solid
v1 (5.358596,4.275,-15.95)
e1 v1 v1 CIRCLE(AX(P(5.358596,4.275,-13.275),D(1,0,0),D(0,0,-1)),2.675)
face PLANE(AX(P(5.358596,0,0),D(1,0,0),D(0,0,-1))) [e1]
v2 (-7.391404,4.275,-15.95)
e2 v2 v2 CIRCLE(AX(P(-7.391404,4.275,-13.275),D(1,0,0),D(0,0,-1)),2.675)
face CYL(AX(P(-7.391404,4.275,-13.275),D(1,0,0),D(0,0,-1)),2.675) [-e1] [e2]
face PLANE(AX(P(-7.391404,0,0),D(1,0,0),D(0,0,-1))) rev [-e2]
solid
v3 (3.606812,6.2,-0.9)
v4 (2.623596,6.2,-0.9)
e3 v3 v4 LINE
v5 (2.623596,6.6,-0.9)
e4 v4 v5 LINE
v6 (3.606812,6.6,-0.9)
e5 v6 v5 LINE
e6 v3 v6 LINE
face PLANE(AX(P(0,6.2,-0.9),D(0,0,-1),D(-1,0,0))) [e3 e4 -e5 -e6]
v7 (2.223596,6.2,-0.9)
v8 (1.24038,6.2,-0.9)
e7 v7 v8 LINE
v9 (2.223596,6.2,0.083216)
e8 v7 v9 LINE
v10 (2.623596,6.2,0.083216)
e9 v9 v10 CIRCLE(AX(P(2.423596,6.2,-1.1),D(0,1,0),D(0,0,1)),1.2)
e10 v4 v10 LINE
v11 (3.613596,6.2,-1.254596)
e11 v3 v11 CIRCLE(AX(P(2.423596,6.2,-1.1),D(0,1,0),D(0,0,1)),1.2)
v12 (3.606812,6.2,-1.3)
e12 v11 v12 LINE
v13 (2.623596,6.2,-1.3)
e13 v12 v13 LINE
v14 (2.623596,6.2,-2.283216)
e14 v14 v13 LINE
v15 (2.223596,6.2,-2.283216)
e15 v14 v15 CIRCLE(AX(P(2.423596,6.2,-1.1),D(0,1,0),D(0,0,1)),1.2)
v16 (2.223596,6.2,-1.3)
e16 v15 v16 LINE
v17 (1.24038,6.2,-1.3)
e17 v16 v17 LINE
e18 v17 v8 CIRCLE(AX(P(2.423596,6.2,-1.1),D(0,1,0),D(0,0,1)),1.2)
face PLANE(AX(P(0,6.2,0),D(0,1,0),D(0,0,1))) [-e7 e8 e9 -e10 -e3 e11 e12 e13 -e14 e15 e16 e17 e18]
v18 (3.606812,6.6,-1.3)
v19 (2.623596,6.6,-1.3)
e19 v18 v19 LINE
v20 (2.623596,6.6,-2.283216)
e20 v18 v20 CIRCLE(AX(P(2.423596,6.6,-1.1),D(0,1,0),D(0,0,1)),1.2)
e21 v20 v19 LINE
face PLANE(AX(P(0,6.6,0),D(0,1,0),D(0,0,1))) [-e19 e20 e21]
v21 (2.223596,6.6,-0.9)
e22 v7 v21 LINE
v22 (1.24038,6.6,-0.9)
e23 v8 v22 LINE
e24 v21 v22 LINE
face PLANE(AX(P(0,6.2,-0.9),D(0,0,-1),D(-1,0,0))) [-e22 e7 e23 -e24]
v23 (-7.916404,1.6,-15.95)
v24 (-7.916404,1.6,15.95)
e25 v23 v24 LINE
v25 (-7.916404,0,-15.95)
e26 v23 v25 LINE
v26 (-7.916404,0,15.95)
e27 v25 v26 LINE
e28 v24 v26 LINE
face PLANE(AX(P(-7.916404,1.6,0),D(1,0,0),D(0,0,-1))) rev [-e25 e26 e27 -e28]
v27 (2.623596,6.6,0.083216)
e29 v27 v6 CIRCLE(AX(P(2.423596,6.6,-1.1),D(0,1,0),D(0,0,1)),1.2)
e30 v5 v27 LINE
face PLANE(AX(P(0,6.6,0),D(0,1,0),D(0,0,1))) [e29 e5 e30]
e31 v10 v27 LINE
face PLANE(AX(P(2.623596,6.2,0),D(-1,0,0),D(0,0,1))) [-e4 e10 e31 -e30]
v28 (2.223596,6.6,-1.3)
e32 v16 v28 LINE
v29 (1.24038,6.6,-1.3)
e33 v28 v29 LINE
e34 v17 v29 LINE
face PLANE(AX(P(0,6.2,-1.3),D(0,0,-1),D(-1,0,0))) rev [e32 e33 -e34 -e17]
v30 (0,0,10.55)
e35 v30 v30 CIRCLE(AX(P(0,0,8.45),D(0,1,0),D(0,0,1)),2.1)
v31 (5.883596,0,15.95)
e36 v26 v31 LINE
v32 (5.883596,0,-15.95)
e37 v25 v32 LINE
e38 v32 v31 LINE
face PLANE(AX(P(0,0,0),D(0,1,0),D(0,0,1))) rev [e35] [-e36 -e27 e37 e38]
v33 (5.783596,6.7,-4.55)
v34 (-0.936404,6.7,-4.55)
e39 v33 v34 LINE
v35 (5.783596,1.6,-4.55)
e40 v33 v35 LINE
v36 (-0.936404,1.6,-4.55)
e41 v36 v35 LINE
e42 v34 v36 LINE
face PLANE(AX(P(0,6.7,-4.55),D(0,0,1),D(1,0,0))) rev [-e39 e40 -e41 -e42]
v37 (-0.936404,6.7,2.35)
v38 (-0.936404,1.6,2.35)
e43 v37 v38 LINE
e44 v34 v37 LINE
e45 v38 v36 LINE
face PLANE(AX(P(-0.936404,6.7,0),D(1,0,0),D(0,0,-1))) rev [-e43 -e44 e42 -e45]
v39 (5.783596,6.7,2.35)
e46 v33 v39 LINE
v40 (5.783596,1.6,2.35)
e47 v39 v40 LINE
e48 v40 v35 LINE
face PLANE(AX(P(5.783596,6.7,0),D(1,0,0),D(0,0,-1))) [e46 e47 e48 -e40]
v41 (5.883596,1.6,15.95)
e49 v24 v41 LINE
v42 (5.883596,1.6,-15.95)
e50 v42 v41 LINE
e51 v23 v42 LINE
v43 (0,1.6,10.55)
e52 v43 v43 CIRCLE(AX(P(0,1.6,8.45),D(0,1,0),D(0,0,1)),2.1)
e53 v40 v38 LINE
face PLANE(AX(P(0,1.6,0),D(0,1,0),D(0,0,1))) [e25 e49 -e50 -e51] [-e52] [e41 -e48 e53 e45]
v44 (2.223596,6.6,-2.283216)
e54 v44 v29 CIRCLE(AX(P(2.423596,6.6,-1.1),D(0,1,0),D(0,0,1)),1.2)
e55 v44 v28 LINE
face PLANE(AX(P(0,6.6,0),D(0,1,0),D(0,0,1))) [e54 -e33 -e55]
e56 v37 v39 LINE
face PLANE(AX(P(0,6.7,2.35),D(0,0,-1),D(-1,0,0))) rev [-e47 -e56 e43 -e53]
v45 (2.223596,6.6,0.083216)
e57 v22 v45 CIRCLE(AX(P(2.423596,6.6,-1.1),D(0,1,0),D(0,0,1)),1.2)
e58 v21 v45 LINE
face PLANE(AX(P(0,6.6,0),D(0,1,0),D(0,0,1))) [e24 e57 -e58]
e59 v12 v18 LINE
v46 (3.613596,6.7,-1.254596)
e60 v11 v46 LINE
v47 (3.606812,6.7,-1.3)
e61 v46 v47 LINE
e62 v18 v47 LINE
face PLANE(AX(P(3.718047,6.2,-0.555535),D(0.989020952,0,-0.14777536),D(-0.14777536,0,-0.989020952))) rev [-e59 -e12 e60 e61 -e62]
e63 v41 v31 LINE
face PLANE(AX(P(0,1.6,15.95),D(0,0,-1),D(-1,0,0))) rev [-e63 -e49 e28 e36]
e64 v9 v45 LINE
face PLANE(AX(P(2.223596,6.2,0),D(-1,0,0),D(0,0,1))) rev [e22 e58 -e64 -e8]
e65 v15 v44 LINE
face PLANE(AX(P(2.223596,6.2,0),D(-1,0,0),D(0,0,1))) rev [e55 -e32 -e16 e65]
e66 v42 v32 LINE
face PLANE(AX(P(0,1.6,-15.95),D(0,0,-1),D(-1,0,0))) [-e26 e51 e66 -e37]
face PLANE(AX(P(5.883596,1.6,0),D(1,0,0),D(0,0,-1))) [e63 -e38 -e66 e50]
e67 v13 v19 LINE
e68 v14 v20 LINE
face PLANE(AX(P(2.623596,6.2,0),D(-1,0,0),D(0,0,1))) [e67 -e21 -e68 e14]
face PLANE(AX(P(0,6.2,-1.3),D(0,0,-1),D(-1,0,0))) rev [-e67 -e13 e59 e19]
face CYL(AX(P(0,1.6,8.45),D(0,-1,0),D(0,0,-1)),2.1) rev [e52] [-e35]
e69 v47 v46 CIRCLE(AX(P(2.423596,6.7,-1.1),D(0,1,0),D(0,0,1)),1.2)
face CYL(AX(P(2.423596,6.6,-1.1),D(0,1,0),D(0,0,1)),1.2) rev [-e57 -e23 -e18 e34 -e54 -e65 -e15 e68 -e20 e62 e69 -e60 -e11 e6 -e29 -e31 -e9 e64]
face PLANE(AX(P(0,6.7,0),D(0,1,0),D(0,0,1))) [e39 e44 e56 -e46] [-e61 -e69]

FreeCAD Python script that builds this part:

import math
import FreeCAD as App
import Part
import Sketcher
from FreeCAD import Vector
Q = App.Units.Quantity

doc = App.newDocument("Part")
params = doc.addObject("Spreadsheet::Sheet", "Params")
for row, (alias, value) in enumerate([
    ("sketch1_width", "13.8 mm"),
    ("sketch1_height", "31.9 mm"),
    ("pad1_length", "1.6 mm"),
    ("sketch2_diameter", "4.2 mm"),
    ("sketch3_height", "6.9 mm"),
    ("sketch3_width", "6.72 mm"),
    ("pad2_length", "6.7 mm"),
    ("sketch4_radius", "1.2 mm"),
    ("pocket2_length", "0.1 mm"),
    ("sketch5_radius", "1.2 mm"),
    ("pocket3_length", "0.5 mm"),
    ("sketch6_diameter", "5.35 mm"),
    ("pad3_length", "6.375 mm"),
    ("pad3_length2", "6.375 mm"),
], start=1):
    params.set(f"A{row}", alias)
    params.set(f"B{row}", "=" + value)
    params.setAlias(f"B{row}", alias)

body = doc.addObject("PartDesign::Body", "Body")

# Sketch on XZ plane
sketch1 = doc.addObject("Sketcher::SketchObject", "Sketch")
body.addObject(sketch1)
sketch1.AttachmentSupport = (doc.XZ_Plane, [""])
sketch1.MapMode = "FlatFace"
sketch1.addGeometry([
    Part.LineSegment(Vector(-8, -16, 0), Vector(-8, 16, 0)),
    Part.LineSegment(Vector(-8, 16, 0), Vector(6, 16, 0)),
    Part.LineSegment(Vector(6, 16, 0), Vector(6, -16, 0)),
    Part.LineSegment(Vector(6, -16, 0), Vector(-8, -16, 0)),
], False)
sketch1.addConstraint([
    Sketcher.Constraint("Coincident", 0, 2, 1, 1),
    Sketcher.Constraint("Coincident", 1, 2, 2, 1),
    Sketcher.Constraint("Coincident", 2, 2, 3, 1),
    Sketcher.Constraint("Coincident", 3, 2, 0, 1),
    Sketcher.Constraint("Vertical", 0),
    Sketcher.Constraint("Horizontal", 1),
    Sketcher.Constraint("Vertical", 2),
    Sketcher.Constraint("Horizontal", 3),
    Sketcher.Constraint("DistanceX", 1, 1, 1, 2, Q("13.8 mm")),
    Sketcher.Constraint("DistanceY", 0, 1, 0, 2, Q("31.9 mm")),
    Sketcher.Constraint("DistanceY", -1, 1, 0, 2, Q("15.95 mm")),
    Sketcher.Constraint("DistanceX", 0, 2, -1, 1, Q("7.916404 mm")),
])
sketch1.setExpression("Constraints[8]", "Params.sketch1_width")
sketch1.setExpression("Constraints[9]", "Params.sketch1_height")
pad1 = doc.addObject("PartDesign::Pad", "Pad")
body.addObject(pad1)
pad1.Profile = sketch1
pad1.setExpression("Length", "Params.pad1_length")
pad1.Reversed = True

# Sketch on XZ plane
sketch2 = doc.addObject("Sketcher::SketchObject", "Sketch001")
body.addObject(sketch2)
sketch2.AttachmentSupport = (doc.XZ_Plane, [""])
sketch2.MapMode = "FlatFace"
sketch2.addGeometry(Part.Circle(Vector(0, 8.4, 0), Vector(0, 0, 1), 2.1), False)
sketch2.addConstraint([
    Sketcher.Constraint("PointOnObject", 0, 3, -2),
    Sketcher.Constraint("Diameter", 0, Q("4.2 mm")),
    Sketcher.Constraint("DistanceY", -1, 1, 0, 3, Q("8.45 mm")),
])
sketch2.setExpression("Constraints[1]", "Params.sketch2_diameter")
pocket1 = doc.addObject("PartDesign::Pocket", "Pocket")
body.addObject(pocket1)
pocket1.Profile = sketch2
pocket1.Type = "ThroughAll"

# Sketch on XZ plane
sketch3 = doc.addObject("Sketcher::SketchObject", "Sketch002")
body.addObject(sketch3)
sketch3.AttachmentSupport = (doc.XZ_Plane, [""])
sketch3.MapMode = "FlatFace"
sketch3.addGeometry([
    Part.LineSegment(Vector(-1, -5, 0), Vector(-1, 2, 0)),
    Part.LineSegment(Vector(-1, 2, 0), Vector(6, 2, 0)),
    Part.LineSegment(Vector(6, 2, 0), Vector(6, -5, 0)),
    Part.LineSegment(Vector(6, -5, 0), Vector(-1, -5, 0)),
], False)
sketch3.addConstraint([
    Sketcher.Constraint("Coincident", 0, 2, 1, 1),
    Sketcher.Constraint("Coincident", 1, 2, 2, 1),
    Sketcher.Constraint("Coincident", 2, 2, 3, 1),
    Sketcher.Constraint("Coincident", 3, 2, 0, 1),
    Sketcher.Constraint("Vertical", 0),
    Sketcher.Constraint("Horizontal", 1),
    Sketcher.Constraint("Vertical", 2),
    Sketcher.Constraint("Horizontal", 3),
    Sketcher.Constraint("DistanceY", 0, 1, 0, 2, Q("6.9 mm")),
    Sketcher.Constraint("DistanceX", 1, 1, 1, 2, Q("6.72 mm")),
    Sketcher.Constraint("DistanceY", -1, 1, 0, 2, Q("2.35 mm")),
    Sketcher.Constraint("DistanceX", 0, 2, -1, 1, Q("0.936404 mm")),
])
sketch3.setExpression("Constraints[8]", "Params.sketch3_height")
sketch3.setExpression("Constraints[9]", "Params.sketch3_width")
pad2 = doc.addObject("PartDesign::Pad", "Pad001")
body.addObject(pad2)
pad2.Profile = sketch3
pad2.setExpression("Length", "Params.pad2_length")
pad2.Reversed = True

# Sketch on XZ plane
sketch4 = doc.addObject("Sketcher::SketchObject", "Sketch003")
body.addObject(sketch4)
sketch4.AttachmentSupport = (doc.XZ_Plane, [""])
sketch4.MapMode = "FlatFace"
sketch4.AttachmentOffset = App.Placement(Vector(0, 0, -6.7), App.Rotation())
sketch4.addGeometry([
    Part.ArcOfCircle(Part.Circle(Vector(2.4, -1.1, 0), Vector(0, 0, 1), 1.2), math.radians(-80), math.radians(-10)),  # 0
    Part.LineSegment(Vector(2.6, -2.3, 0), Vector(2.6, -1.3, 0)),  # 1
    Part.LineSegment(Vector(2.6, -1.3, 0), Vector(3.6, -1.3, 0)),  # 2
    Part.LineSegment(Vector(1.2, -1.3, 0), Vector(2.2, -1.3, 0)),  # 3
    Part.LineSegment(Vector(2.2, -1.3, 0), Vector(2.2, -2.3, 0)),  # 4
    Part.ArcOfCircle(Part.Circle(Vector(2.4, -1.1, 0), Vector(0, 0, 1), 1.2), math.radians(-170), math.radians(-100)),  # 5
    Part.LineSegment(Vector(2.2, -0.9, 0), Vector(1.2, -0.9, 0)),  # 6
    Part.ArcOfCircle(Part.Circle(Vector(2.4, -1.1, 0), Vector(0, 0, 1), 1.2), math.radians(100), math.radians(170)),  # 7
    Part.LineSegment(Vector(2.2, 0.1, 0), Vector(2.2, -0.9, 0)),  # 8
    Part.LineSegment(Vector(2.6, -0.9, 0), Vector(2.6, 0.1, 0)),  # 9
    Part.ArcOfCircle(Part.Circle(Vector(2.4, -1.1, 0), Vector(0, 0, 1), 1.2), math.radians(10), math.radians(80)),  # 10
    Part.LineSegment(Vector(3.6, -0.9, 0), Vector(2.6, -0.9, 0)),  # 11
], False)
sketch4.addConstraint([
    Sketcher.Constraint("Coincident", 0, 1, 1, 1),
    Sketcher.Constraint("Coincident", 1, 2, 2, 1),
    Sketcher.Constraint("Coincident", 2, 2, 0, 2),
    Sketcher.Constraint("Coincident", 3, 2, 4, 1),
    Sketcher.Constraint("Coincident", 4, 2, 5, 2),
    Sketcher.Constraint("Coincident", 5, 1, 3, 1),
    Sketcher.Constraint("Coincident", 6, 2, 7, 2),
    Sketcher.Constraint("Coincident", 7, 1, 8, 1),
    Sketcher.Constraint("Coincident", 8, 2, 6, 1),
    Sketcher.Constraint("Coincident", 9, 2, 10, 2),
    Sketcher.Constraint("Coincident", 10, 1, 11, 1),
    Sketcher.Constraint("Coincident", 11, 2, 9, 1),
    Sketcher.Constraint("Vertical", 1),
    Sketcher.Constraint("Horizontal", 2),
    Sketcher.Constraint("Horizontal", 3),
    Sketcher.Constraint("Vertical", 4),
    Sketcher.Constraint("Horizontal", 6),
    Sketcher.Constraint("Vertical", 8),
    Sketcher.Constraint("Vertical", 9),
    Sketcher.Constraint("Horizontal", 11),
    Sketcher.Constraint("Coincident", 5, 3, 0, 3),
    Sketcher.Constraint("Coincident", 7, 3, 0, 3),
    Sketcher.Constraint("Coincident", 10, 3, 0, 3),
    Sketcher.Constraint("Equal", 0, 5),
    Sketcher.Constraint("Equal", 5, 7),
    Sketcher.Constraint("Equal", 7, 10),
    Sketcher.Constraint("Horizontal", 2, 2, 3, 2),
    Sketcher.Constraint("Horizontal", 0, 1, 4, 2),
    Sketcher.Constraint("Horizontal", 7, 1, 9, 2),
    Sketcher.Constraint("Horizontal", 8, 2, 10, 1),
    Sketcher.Constraint("Vertical", 5, 1, 6, 2),
    Sketcher.Constraint("Vertical", 4, 2, 7, 1),
    Sketcher.Constraint("Equal", 11, 1),
    Sketcher.Constraint("Radius", 0, Q("1.2 mm")),
    Sketcher.Constraint("DistanceY", 0, 3, -1, 1, Q("1.1 mm")),
    Sketcher.Constraint("DistanceY", 1, 2, -1, 1, Q("1.3 mm")),
    Sketcher.Constraint("DistanceX", -1, 1, 5, 1, Q("1.24038 mm")),
])
sketch4.setExpression("Constraints[33]", "Params.sketch4_radius")
pocket2 = doc.addObject("PartDesign::Pocket", "Pocket001")
body.addObject(pocket2)
pocket2.Profile = sketch4
pocket2.setExpression("Length", "Params.pocket2_length")
pocket2.Reversed = True

# Sketch on XZ plane
sketch5 = doc.addObject("Sketcher::SketchObject", "Sketch004")
body.addObject(sketch5)
sketch5.AttachmentSupport = (doc.XZ_Plane, [""])
sketch5.MapMode = "FlatFace"
sketch5.AttachmentOffset = App.Placement(Vector(0, 0, -6.7), App.Rotation())
sketch5.addGeometry([
    Part.LineSegment(Vector(2.224, -2.283, 0), Vector(2.224, -1.3, 0)),  # 0
    Part.LineSegment(Vector(2.224, -1.3, 0), Vector(1.24, -1.3, 0)),  # 1
    Part.ArcOfCircle(Part.Circle(Vector(2.424, -1.1, 0), Vector(0, 0, 1), 1.2), math.radians(170.41), math.radians(189.59)),  # 2
    Part.LineSegment(Vector(1.24, -0.9, 0), Vector(2.224, -0.9, 0)),  # 3
    Part.LineSegment(Vector(2.224, -0.9, 0), Vector(2.224, 0.083, 0)),  # 4
    Part.ArcOfCircle(Part.Circle(Vector(2.424, -1.1, 0), Vector(0, 0, 1), 1.2), math.radians(80.41), math.radians(99.59)),  # 5
    Part.LineSegment(Vector(2.624, 0.083, 0), Vector(2.624, -0.9, 0)),  # 6
    Part.LineSegment(Vector(2.624, -0.9, 0), Vector(3.607, -0.9, 0)),  # 7
    Part.ArcOfCircle(Part.Circle(Vector(2.424, -1.1, 0), Vector(0, 0, 1), 1.2), math.radians(0), math.radians(9.59)),  # 8
    Part.ArcOfCircle(Part.Circle(Vector(2.424, -1.1, 0), Vector(0, 0, 1), 1.2), math.radians(-7.4), math.radians(0)),  # 9
    Part.LineSegment(Vector(3.614, -1.255, 0), Vector(3.607, -1.3, 0)),  # 10
    Part.LineSegment(Vector(3.607, -1.3, 0), Vector(2.624, -1.3, 0)),  # 11
    Part.LineSegment(Vector(2.624, -1.3, 0), Vector(2.624, -2.283, 0)),  # 12
    Part.ArcOfCircle(Part.Circle(Vector(2.424, -1.1, 0), Vector(0, 0, 1), 1.2), math.radians(-99.59), math.radians(-80.41)),  # 13
], False)
sketch5.addConstraint([
    Sketcher.Constraint("Coincident", 0, 2, 1, 1),
    Sketcher.Constraint("Coincident", 1, 2, 2, 2),
    Sketcher.Constraint("Coincident", 2, 1, 3, 1),
    Sketcher.Constraint("Coincident", 3, 2, 4, 1),
    Sketcher.Constraint("Coincident", 4, 2, 5, 2),
    Sketcher.Constraint("Coincident", 5, 1, 6, 1),
    Sketcher.Constraint("Coincident", 6, 2, 7, 1),
    Sketcher.Constraint("Coincident", 7, 2, 8, 2),
    Sketcher.Constraint("Tangent", 8, 1, 9, 2),
    Sketcher.Constraint("Coincident", 9, 1, 10, 1),
    Sketcher.Constraint("Coincident", 10, 2, 11, 1),
    Sketcher.Constraint("Coincident", 11, 2, 12, 1),
    Sketcher.Constraint("Coincident", 12, 2, 13, 2),
    Sketcher.Constraint("Coincident", 13, 1, 0, 1),
    Sketcher.Constraint("Vertical", 0),
    Sketcher.Constraint("Horizontal", 1),
    Sketcher.Constraint("Horizontal", 3),
    Sketcher.Constraint("Vertical", 4),
    Sketcher.Constraint("Vertical", 6),
    Sketcher.Constraint("Horizontal", 7),
    Sketcher.Constraint("Horizontal", 11),
    Sketcher.Constraint("Vertical", 12),
    Sketcher.Constraint("Coincident", 5, 3, 2, 3),
    Sketcher.Constraint("Coincident", 8, 3, 2, 3),
    Sketcher.Constraint("Coincident", 13, 3, 2, 3),
    Sketcher.Constraint("Equal", 2, 5),
    Sketcher.Constraint("Equal", 5, 8),
    Sketcher.Constraint("Equal", 8, 9),
    Sketcher.Constraint("Equal", 9, 13),
    Sketcher.Constraint("Horizontal", 4, 2, 5, 1),
    Sketcher.Constraint("Horizontal", 3, 2, 6, 2),
    Sketcher.Constraint("Horizontal", 13, 3, 8, 1),
    Sketcher.Constraint("Horizontal", 1, 2, 10, 2),
    Sketcher.Constraint("Horizontal", 12, 2, 13, 1),
    Sketcher.Constraint("Vertical", 1, 2, 2, 1),
    Sketcher.Constraint("Vertical", 0, 2, 3, 2),
    Sketcher.Constraint("Vertical", 7, 2, 10, 2),
    Sketcher.Constraint("Equal", 11, 0),
    Sketcher.Constraint("Radius", 2, Q("1.2 mm")),
    Sketcher.Constraint("DistanceX", 6, 2, 8, 1, Q("1 mm")),
    Sketcher.Constraint("DistanceY", 2, 3, -1, 1, Q("1.1 mm")),
    Sketcher.Constraint("DistanceX", 9, 1, 8, 1, Q("0.01 mm")),
    Sketcher.Constraint("DistanceX", -1, 1, 1, 2, Q("1.24038 mm")),
])
sketch5.setExpression("Constraints[38]", "Params.sketch5_radius")
pocket3 = doc.addObject("PartDesign::Pocket", "Pocket002")
body.addObject(pocket3)
pocket3.Profile = sketch5
pocket3.setExpression("Length", "Params.pocket3_length")
pocket3.Reversed = True
body2 = doc.addObject("PartDesign::Body", "Body001")

# Sketch on YZ plane
sketch6 = doc.addObject("Sketcher::SketchObject", "Sketch005")
body2.addObject(sketch6)
sketch6.AttachmentSupport = (doc.getObject("YZ_Plane001"), [""])
sketch6.MapMode = "FlatFace"
sketch6.AttachmentOffset = App.Placement(Vector(0, 0, -1.016404), App.Rotation())
sketch6.addGeometry(Part.Circle(Vector(4.3, -13.3, 0), Vector(0, 0, 1), 2.7), False)
sketch6.addConstraint([
    Sketcher.Constraint("Diameter", 0, Q("5.35 mm")),
    Sketcher.Constraint("DistanceX", -1, 1, 0, 3, Q("4.275 mm")),
    Sketcher.Constraint("DistanceY", 0, 3, -1, 1, Q("13.275 mm")),
])
sketch6.setExpression("Constraints[0]", "Params.sketch6_diameter")
pad3 = doc.addObject("PartDesign::Pad", "Pad002")
body2.addObject(pad3)
pad3.Profile = sketch6
pad3.Type = "TwoLengths"
pad3.setExpression("Length", "Params.pad3_length")
pad3.setExpression("Length2", "Params.pad3_length2")

doc.recompute()
